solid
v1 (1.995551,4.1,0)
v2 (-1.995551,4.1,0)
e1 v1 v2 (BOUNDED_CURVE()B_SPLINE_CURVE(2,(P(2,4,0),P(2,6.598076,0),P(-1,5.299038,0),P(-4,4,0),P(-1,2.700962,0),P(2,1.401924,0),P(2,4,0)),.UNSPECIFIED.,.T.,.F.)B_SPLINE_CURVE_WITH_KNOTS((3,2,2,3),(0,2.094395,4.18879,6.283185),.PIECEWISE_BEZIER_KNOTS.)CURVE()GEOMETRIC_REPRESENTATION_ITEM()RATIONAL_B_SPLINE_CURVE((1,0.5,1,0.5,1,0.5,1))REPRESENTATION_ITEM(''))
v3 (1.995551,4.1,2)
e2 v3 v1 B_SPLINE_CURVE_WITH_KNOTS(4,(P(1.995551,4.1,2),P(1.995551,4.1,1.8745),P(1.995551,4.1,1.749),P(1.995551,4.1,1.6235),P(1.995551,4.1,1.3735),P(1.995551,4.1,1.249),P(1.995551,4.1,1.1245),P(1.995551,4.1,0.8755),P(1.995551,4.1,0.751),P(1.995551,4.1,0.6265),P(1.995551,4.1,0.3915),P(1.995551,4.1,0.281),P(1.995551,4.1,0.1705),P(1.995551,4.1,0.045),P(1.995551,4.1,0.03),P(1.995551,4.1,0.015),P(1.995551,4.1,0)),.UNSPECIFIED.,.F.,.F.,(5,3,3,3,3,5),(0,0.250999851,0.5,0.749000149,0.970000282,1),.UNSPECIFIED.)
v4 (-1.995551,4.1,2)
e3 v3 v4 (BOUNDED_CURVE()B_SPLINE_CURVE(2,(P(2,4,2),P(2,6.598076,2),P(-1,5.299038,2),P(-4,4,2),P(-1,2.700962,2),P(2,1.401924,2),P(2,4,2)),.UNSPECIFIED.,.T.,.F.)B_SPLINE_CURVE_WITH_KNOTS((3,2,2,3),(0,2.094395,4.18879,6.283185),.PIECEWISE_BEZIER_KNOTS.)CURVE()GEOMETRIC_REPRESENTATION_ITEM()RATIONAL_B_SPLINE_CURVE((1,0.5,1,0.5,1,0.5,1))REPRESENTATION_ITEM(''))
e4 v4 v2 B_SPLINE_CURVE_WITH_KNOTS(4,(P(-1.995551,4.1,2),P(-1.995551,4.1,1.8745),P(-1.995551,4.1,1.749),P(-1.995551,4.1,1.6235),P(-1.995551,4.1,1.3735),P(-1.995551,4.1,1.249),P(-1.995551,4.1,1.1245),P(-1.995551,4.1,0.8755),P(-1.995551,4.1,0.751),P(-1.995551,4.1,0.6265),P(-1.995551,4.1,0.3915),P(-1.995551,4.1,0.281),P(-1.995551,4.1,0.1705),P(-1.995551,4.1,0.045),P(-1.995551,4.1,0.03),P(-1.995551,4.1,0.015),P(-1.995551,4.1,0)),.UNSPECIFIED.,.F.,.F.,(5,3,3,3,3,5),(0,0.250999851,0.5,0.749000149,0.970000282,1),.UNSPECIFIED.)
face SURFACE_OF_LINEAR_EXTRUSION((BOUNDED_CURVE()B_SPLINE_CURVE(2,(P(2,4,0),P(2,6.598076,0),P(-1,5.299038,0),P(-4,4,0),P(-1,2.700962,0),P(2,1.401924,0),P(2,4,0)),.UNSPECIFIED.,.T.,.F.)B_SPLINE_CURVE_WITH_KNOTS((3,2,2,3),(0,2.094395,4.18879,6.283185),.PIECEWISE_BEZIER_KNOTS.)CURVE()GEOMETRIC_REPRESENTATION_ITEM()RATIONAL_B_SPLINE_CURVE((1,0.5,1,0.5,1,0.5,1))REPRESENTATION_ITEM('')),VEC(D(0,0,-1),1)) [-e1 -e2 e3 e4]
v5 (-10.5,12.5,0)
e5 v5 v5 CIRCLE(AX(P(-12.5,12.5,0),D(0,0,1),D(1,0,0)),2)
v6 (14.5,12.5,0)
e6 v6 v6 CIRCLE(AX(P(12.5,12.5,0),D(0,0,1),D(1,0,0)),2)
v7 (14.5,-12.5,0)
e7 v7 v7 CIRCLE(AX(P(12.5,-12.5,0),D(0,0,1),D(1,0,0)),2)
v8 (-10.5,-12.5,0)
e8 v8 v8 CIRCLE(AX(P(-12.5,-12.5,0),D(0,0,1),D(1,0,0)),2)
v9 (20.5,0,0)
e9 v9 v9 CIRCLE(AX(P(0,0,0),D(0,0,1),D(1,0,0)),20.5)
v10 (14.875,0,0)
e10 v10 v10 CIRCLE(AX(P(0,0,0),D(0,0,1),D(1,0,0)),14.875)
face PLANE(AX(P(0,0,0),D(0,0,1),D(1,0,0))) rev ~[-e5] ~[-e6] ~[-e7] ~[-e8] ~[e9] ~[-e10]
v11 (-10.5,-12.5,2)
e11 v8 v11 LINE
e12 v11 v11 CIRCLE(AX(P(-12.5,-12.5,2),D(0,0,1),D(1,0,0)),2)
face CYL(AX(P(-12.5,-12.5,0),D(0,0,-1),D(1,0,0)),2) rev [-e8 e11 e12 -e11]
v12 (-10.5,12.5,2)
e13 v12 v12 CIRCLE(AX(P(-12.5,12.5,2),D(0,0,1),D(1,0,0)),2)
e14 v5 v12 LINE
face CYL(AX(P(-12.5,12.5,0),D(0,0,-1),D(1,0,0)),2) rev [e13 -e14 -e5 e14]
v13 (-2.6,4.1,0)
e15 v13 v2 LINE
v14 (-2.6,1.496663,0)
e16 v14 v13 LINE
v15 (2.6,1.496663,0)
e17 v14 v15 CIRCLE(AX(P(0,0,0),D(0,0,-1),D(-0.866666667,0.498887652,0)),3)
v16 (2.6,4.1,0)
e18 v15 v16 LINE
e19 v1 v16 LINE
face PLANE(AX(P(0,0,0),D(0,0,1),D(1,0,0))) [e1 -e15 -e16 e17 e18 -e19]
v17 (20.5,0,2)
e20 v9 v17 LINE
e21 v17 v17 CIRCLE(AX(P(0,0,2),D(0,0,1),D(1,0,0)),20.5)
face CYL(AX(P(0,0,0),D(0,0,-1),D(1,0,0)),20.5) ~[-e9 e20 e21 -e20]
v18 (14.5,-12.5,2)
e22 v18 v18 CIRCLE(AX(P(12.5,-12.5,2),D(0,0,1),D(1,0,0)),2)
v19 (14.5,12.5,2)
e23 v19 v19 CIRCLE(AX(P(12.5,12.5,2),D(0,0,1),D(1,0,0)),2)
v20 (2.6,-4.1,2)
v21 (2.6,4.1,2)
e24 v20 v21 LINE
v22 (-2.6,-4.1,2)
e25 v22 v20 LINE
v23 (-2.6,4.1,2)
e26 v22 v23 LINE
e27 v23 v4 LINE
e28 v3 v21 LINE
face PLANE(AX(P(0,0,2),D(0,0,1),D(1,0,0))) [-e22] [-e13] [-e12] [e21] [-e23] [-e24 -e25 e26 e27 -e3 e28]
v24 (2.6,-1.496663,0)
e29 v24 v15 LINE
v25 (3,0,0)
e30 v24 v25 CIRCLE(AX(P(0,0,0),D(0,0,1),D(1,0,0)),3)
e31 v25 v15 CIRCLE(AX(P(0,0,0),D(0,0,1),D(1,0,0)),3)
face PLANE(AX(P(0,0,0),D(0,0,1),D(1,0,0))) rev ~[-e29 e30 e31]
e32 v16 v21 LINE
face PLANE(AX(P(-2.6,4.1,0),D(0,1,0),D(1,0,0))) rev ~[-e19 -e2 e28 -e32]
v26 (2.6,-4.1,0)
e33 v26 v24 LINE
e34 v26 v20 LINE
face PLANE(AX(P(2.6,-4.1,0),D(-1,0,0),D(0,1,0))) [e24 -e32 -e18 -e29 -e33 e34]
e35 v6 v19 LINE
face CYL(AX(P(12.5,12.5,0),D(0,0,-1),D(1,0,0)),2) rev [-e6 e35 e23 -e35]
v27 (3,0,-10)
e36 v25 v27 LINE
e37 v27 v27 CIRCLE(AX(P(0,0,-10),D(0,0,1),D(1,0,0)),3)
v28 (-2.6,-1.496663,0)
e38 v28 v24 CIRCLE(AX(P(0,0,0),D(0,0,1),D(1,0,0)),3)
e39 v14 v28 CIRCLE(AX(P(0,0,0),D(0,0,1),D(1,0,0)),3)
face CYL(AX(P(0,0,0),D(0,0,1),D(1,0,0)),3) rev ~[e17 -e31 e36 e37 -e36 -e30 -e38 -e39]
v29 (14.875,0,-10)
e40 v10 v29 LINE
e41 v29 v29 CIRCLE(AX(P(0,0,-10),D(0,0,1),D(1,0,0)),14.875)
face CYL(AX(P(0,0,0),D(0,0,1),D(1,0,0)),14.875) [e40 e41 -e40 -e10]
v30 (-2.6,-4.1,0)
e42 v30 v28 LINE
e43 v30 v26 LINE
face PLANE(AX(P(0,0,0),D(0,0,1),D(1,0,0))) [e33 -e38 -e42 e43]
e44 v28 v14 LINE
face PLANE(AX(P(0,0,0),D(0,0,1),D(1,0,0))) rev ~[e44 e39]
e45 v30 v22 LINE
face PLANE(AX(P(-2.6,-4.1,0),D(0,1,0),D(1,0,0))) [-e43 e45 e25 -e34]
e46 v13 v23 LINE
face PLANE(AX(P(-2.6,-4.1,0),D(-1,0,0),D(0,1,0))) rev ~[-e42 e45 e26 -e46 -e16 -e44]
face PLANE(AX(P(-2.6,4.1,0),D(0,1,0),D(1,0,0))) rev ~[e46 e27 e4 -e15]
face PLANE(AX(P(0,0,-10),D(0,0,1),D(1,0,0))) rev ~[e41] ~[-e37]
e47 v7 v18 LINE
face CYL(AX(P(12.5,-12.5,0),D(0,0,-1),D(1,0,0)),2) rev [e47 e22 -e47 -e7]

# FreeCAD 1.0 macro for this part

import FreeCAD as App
import Part
import Sketcher

V = App.Vector

doc = App.newDocument("Part")
body = doc.addObject("PartDesign::Body", "Body")

# Sketch on XY plane
sketch1 = body.newObject("Sketcher::SketchObject", "Sketch")
sketch1.AttachmentSupport = (doc.getObject("XY_Plane"), [""])
sketch1.MapMode = "FlatFace"
sketch1.addGeometry(Part.Circle(V(0, 0, 0), V(0, 0, 1), 20), False)
sketch1.addConstraint(Sketcher.Constraint("Coincident", 0, 3, -1, 1))
sketch1.addConstraint(Sketcher.Constraint("Diameter", 0, 41.0))
pad1 = body.newObject("PartDesign::Pad", "Pad")
pad1.Profile = sketch1
pad1.Length = 2

# Sketch on XY plane
sketch2 = body.newObject("Sketcher::SketchObject", "Sketch001")
sketch2.AttachmentSupport = (doc.getObject("XY_Plane"), [""])
sketch2.MapMode = "FlatFace"
sketch2.addGeometry(Part.Circle(V(0, 0, 0), V(0, 0, 1), 15), False)
sketch2.addConstraint(Sketcher.Constraint("Coincident", 0, 3, -1, 1))
sketch2.addConstraint(Sketcher.Constraint("Diameter", 0, 29.75))
pad2 = body.newObject("PartDesign::Pad", "Pad001")
pad2.Profile = sketch2
pad2.Length = 10
pad2.Reversed = True

# Sketch on XY plane
sketch3 = body.newObject("Sketcher::SketchObject", "Sketch002")
sketch3.AttachmentSupport = (doc.getObject("XY_Plane"), [""])
sketch3.MapMode = "FlatFace"
sketch3.addGeometry(Part.Circle(V(-12.5, 12.5, 0), V(0, 0, 1), 2), False)
sketch3.addGeometry(Part.Circle(V(12.5, 12.5, 0), V(0, 0, 1), 2), False)
sketch3.addGeometry(Part.Circle(V(12.5, -12.5, 0), V(0, 0, 1), 2), False)
sketch3.addGeometry(Part.Circle(V(-12.5, -12.5, 0), V(0, 0, 1), 2), False)
sketch3.addConstraint(Sketcher.Constraint("Equal", 0, 1))
sketch3.addConstraint(Sketcher.Constraint("Equal", 1, 2))
sketch3.addConstraint(Sketcher.Constraint("Equal", 2, 3))
sketch3.addConstraint(Sketcher.Constraint("Symmetric", 0, 3, 2, 3, -1, 1))
sketch3.addConstraint(Sketcher.Constraint("Symmetric", 1, 3, 3, 3, -1, 1))
sketch3.addConstraint(Sketcher.Constraint("Symmetric", 0, 3, 1, 3, -2))
sketch3.addConstraint(Sketcher.Constraint("Diameter", 0, 4.0))
sketch3.addConstraint(Sketcher.Constraint("DistanceX", 0, 3, 1, 3, 25.0))
sketch3.addConstraint(Sketcher.Constraint("DistanceY", 2, 3, 1, 3, 25.0))
pocket1 = body.newObject("PartDesign::Pocket", "Pocket")
pocket1.Profile = sketch3
pocket1.Length = 2
pocket1.Reversed = True

# Sketch on XY plane
sketch4 = body.newObject("Sketcher::SketchObject", "Sketch003")
sketch4.AttachmentSupport = (doc.getObject("XY_Plane"), [""])
sketch4.MapMode = "FlatFace"
sketch4.addGeometry(Part.Circle(V(0, 0, 0), V(0, 0, 1), 3), False)
sketch4.addConstraint(Sketcher.Constraint("Coincident", 0, 3, -1, 1))
sketch4.addConstraint(Sketcher.Constraint("Diameter", 0, 6.0))
pocket2 = body.newObject("PartDesign::Pocket", "Pocket001")
pocket2.Profile = sketch4
pocket2.Length = 10

# Sketch on XY plane
sketch5 = body.newObject("Sketcher::SketchObject", "Sketch004")
sketch5.AttachmentSupport = (doc.getObject("XY_Plane"), [""])
sketch5.MapMode = "FlatFace"
sketch5.addGeometry(Part.LineSegment(V(-3, 4, 0), V(-3, -4, 0)), False)
sketch5.addGeometry(Part.LineSegment(V(-3, -4, 0), V(3, -4, 0)), False)
sketch5.addGeometry(Part.LineSegment(V(3, -4, 0), V(3, 4, 0)), False)
sketch5.addGeometry(Part.LineSegment(V(3, 4, 0), V(-3, 4, 0)), False)
sketch5.addConstraint(Sketcher.Constraint("Coincident", 0, 2, 1, 1))
sketch5.addConstraint(Sketcher.Constraint("Coincident", 1, 2, 2, 1))
sketch5.addConstraint(Sketcher.Constraint("Coincident", 2, 2, 3, 1))
sketch5.addConstraint(Sketcher.Constraint("Coincident", 3, 2, 0, 1))
sketch5.addConstraint(Sketcher.Constraint("Vertical", 0))
sketch5.addConstraint(Sketcher.Constraint("Horizontal", 1))
sketch5.addConstraint(Sketcher.Constraint("Vertical", 2))
sketch5.addConstraint(Sketcher.Constraint("Horizontal", 3))
sketch5.addConstraint(Sketcher.Constraint("Symmetric", 0, 2, 2, 2, -1, 1))
sketch5.addConstraint(Sketcher.Constraint("DistanceX", 1, 1, 1, 2, 5.2))
sketch5.addConstraint(Sketcher.Constraint("DistanceY", 0, 2, 0, 1, 8.2))
pocket3 = body.newObject("PartDesign::Pocket", "Pocket002")
pocket3.Profile = sketch5
pocket3.Length = 2
pocket3.Reversed = True

# Sketch on XY plane
sketch6 = body.newObject("Sketcher::SketchObject", "Sketch005")
sketch6.AttachmentSupport = (doc.getObject("XY_Plane"), [""])
sketch6.MapMode = "FlatFace"
sketch6.addGeometry(Part.BSplineCurve([V(2, 4, 0), V(2, 6.598076, 0), V(-1, 5.299038, 0), V(-4, 4, 0), V(-1, 2.700962, 0), V(2, 1.401924, 0), V(2, 4, 0)], [3, 2, 2, 3], [0, 2.094395, 4.18879, 6.283185], False, 2, [1, 0.5, 1, 0.5, 1, 0.5, 1], False), False)
sketch6.addConstraint(Sketcher.Constraint("Block", 0))
pocket4 = body.newObject("PartDesign::Pocket", "Pocket003")
pocket4.Profile = sketch6
pocket4.Length = 2
pocket4.Reversed = True

doc.recompute()
